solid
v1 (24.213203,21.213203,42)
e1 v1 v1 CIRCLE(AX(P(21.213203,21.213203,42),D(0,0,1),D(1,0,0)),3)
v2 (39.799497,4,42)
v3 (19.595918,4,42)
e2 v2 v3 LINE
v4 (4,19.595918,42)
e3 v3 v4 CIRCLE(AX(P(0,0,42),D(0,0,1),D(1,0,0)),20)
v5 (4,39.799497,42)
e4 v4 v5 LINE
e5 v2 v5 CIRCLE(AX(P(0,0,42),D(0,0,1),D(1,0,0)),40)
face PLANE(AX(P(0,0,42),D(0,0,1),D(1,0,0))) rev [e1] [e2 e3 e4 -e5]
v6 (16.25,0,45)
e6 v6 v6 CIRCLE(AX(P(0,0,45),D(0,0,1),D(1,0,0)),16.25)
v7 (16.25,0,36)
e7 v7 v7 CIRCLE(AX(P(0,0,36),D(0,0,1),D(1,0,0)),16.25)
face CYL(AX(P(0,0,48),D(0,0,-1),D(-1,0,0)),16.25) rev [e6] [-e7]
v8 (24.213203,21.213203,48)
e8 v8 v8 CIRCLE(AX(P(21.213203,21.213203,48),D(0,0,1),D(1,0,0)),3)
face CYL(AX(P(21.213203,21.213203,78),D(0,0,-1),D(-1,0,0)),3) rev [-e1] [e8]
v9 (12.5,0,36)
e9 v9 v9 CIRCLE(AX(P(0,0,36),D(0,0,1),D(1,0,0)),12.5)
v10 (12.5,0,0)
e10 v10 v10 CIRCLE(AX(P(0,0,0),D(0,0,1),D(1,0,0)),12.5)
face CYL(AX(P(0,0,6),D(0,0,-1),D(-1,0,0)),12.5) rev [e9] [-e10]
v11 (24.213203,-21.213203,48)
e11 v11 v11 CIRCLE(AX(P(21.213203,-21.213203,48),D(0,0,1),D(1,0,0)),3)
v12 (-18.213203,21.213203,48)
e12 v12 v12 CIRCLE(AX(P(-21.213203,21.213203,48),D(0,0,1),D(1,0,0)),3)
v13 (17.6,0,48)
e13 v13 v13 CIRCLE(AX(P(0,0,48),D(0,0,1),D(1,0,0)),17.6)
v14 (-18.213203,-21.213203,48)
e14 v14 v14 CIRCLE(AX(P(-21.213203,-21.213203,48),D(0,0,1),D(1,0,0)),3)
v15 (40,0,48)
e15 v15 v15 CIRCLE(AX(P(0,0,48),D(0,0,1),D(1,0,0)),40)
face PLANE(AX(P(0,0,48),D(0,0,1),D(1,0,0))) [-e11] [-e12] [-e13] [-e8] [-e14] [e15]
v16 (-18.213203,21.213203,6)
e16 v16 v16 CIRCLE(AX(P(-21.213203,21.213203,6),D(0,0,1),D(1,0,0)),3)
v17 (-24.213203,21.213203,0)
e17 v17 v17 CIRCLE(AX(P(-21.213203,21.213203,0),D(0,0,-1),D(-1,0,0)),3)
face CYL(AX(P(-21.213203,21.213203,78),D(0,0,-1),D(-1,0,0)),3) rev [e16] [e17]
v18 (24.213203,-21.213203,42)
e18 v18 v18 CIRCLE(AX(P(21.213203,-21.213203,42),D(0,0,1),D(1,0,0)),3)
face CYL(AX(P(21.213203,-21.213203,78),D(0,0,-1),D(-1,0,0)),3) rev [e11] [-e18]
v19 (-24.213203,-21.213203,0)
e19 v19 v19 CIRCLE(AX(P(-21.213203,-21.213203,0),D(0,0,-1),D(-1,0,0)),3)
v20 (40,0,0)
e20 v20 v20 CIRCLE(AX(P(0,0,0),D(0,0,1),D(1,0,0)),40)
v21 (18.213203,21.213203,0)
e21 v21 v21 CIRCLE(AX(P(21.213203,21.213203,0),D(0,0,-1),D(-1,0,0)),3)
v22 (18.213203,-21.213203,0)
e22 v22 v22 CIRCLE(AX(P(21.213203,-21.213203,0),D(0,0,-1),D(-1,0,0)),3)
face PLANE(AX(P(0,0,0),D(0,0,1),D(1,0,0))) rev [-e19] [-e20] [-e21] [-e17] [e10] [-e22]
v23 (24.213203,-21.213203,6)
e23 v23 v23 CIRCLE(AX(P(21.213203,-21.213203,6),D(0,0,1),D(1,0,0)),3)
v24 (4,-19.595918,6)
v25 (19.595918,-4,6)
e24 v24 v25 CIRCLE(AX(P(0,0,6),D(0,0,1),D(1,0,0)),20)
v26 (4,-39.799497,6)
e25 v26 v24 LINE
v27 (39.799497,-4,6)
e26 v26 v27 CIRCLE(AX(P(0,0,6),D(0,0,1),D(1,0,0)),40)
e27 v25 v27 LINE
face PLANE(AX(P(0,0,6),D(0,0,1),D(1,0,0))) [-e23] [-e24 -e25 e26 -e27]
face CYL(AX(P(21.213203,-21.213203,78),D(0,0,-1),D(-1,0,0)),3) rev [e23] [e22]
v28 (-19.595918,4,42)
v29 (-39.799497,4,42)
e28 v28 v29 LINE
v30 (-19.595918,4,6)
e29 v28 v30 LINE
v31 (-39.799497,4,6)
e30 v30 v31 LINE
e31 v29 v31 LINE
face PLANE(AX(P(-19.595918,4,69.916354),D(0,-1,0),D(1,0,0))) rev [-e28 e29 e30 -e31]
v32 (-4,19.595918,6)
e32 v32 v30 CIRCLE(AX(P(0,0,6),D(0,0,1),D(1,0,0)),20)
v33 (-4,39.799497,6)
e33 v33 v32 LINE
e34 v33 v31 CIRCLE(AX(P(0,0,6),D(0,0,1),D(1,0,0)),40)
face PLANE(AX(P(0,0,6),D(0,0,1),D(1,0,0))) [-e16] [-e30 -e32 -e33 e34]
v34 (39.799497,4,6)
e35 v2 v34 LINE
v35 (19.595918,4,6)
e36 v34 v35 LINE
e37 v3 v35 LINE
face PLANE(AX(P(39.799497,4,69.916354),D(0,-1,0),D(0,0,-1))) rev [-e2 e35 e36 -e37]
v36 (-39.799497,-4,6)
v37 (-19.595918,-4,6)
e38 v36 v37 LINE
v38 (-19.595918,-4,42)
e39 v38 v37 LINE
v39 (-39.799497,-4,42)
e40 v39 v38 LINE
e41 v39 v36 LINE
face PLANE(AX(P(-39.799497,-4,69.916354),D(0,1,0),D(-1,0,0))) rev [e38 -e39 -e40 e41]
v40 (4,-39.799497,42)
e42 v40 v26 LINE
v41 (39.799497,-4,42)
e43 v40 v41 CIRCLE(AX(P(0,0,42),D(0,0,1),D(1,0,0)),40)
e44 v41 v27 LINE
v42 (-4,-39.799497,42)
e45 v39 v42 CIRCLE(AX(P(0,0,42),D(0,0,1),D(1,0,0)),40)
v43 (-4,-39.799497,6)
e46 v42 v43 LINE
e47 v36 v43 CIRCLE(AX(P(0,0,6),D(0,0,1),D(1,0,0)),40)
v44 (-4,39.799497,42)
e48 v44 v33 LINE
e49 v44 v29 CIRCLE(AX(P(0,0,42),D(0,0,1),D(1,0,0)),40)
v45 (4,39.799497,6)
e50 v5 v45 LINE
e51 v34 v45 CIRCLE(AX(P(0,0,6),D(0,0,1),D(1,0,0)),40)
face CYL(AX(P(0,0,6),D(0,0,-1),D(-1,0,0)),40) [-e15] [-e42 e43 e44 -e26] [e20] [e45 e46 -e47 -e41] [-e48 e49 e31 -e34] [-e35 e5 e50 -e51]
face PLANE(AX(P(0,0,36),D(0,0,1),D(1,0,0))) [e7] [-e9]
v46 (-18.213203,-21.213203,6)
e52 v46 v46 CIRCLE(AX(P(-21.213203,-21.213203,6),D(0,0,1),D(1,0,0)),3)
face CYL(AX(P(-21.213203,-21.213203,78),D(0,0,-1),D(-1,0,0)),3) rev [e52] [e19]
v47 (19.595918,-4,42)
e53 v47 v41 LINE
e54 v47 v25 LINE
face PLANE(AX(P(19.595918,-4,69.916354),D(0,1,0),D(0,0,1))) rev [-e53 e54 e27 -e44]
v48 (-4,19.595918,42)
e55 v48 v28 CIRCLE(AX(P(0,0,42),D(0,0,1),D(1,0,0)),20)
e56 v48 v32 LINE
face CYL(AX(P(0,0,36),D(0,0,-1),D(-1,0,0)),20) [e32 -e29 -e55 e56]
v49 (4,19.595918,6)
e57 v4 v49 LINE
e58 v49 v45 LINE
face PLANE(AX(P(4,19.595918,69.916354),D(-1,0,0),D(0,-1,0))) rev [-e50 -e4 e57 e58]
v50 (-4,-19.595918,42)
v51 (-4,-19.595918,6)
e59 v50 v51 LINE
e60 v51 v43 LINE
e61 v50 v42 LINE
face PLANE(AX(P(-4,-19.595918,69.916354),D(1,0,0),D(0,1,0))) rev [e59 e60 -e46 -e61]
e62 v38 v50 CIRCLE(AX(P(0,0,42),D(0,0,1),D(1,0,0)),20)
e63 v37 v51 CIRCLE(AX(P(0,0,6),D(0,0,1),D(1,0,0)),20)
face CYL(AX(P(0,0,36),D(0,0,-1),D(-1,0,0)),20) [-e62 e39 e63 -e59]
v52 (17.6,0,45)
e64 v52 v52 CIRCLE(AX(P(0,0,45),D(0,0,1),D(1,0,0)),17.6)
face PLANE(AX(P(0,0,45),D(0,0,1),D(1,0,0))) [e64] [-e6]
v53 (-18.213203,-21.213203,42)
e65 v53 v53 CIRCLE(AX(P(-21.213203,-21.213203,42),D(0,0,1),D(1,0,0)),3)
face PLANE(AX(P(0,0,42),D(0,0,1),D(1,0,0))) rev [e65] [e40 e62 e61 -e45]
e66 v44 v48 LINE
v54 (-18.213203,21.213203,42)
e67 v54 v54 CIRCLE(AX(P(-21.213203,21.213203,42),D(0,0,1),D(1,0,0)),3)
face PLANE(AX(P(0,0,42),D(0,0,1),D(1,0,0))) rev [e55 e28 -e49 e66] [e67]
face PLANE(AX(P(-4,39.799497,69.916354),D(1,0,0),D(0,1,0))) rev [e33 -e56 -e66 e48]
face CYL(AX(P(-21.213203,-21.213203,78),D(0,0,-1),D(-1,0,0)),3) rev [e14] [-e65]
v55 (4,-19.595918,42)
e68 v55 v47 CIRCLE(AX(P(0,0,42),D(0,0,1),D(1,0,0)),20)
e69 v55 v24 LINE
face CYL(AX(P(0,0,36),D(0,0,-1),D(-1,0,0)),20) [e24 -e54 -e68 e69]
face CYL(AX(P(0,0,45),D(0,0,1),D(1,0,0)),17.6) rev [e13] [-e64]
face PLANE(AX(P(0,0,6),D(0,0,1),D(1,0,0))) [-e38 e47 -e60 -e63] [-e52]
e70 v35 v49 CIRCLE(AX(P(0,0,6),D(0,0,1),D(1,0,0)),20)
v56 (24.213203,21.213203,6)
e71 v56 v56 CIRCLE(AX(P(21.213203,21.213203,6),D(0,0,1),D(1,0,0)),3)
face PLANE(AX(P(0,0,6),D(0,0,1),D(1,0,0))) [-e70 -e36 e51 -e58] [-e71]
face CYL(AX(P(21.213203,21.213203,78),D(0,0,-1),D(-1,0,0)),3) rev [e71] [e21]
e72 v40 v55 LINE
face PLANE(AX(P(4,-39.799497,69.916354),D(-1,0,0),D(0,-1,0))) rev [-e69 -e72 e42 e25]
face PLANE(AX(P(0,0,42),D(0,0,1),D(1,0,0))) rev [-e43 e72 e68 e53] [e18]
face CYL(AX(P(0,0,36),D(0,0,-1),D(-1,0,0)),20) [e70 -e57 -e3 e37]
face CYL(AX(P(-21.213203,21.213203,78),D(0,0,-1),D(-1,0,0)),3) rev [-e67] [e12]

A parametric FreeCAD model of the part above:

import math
import FreeCAD as App
import Part
import Sketcher

V = App.Vector
Q = App.Units.Quantity

doc = App.newDocument("Part")
body = doc.addObject("PartDesign::Body", "Body")

sketch1 = doc.addObject("Sketcher::SketchObject", "Sketch")
body.addObject(sketch1)
sketch1.AttachmentSupport = (doc.XY_Plane, [""])
sketch1.MapMode = "FlatFace"
sketch1.addGeometry([
    Part.Circle(V(0, 0, 0), V(0, 0, 1), 40),
    Part.Circle(V(0, 0, 0), V(0, 0, 1), 12),
], False)
sketch1.addConstraint([
    Sketcher.Constraint("Coincident", 0, 3, -1, 1),
    Sketcher.Constraint("Coincident", 1, 3, -1, 1),
    Sketcher.Constraint("Diameter", 0, Q("80 mm")),
    Sketcher.Constraint("Diameter", 1, Q("25 mm")),
])
pad1 = doc.addObject("PartDesign::Pad", "Pad")
body.addObject(pad1)
pad1.Profile = sketch1
pad1.Length = 6

sketch2 = doc.addObject("Sketcher::SketchObject", "Sketch001")
body.addObject(sketch2)
sketch2.AttachmentSupport = (doc.XY_Plane, [""])
sketch2.MapMode = "FlatFace"
sketch2.AttachmentOffset = App.Placement(V(0, 0, 6), App.Rotation())
sketch2.addGeometry([
    Part.Circle(V(0, 0, 0), V(0, 0, 1), 20),
    Part.Circle(V(0, 0, 0), V(0, 0, 1), 12),
], False)
sketch2.addConstraint([
    Sketcher.Constraint("Coincident", 0, 3, -1, 1),
    Sketcher.Constraint("Coincident", 1, 3, -1, 1),
    Sketcher.Constraint("Diameter", 0, Q("40 mm")),
    Sketcher.Constraint("Diameter", 1, Q("25 mm")),
])
pad2 = doc.addObject("PartDesign::Pad", "Pad001")
body.addObject(pad2)
pad2.Profile = sketch2
pad2.Length = 30

sketch3 = doc.addObject("Sketcher::SketchObject", "Sketch002")
body.addObject(sketch3)
sketch3.AttachmentSupport = (doc.XY_Plane, [""])
sketch3.MapMode = "FlatFace"
sketch3.AttachmentOffset = App.Placement(V(0, 0, 36), App.Rotation())
sketch3.addGeometry([
    Part.Circle(V(0, 0, 0), V(0, 0, 1), 20),
    Part.Circle(V(0, 0, 0), V(0, 0, 1), 16),
], False)
sketch3.addConstraint([
    Sketcher.Constraint("Coincident", 0, 3, -1, 1),
    Sketcher.Constraint("Coincident", 1, 3, -1, 1),
    Sketcher.Constraint("Diameter", 0, Q("40 mm")),
    Sketcher.Constraint("Diameter", 1, Q("32.5 mm")),
])
pad3 = doc.addObject("PartDesign::Pad", "Pad002")
body.addObject(pad3)
pad3.Profile = sketch3
pad3.Length = 12

sketch4 = doc.addObject("Sketcher::SketchObject", "Sketch003")
body.addObject(sketch4)
sketch4.AttachmentSupport = (doc.XY_Plane, [""])
sketch4.MapMode = "FlatFace"
sketch4.AttachmentOffset = App.Placement(V(0, 0, 6), App.Rotation())
sketch4.addGeometry([
    Part.LineSegment(V(4, -40, 0), V(4, -20, 0)),
    Part.ArcOfCircle(Part.Circle(V(0, 0, 0), V(0, 0, 1), 20), math.radians(-102), math.radians(-78)),
    Part.LineSegment(V(-4, -20, 0), V(-4, -40, 0)),
    Part.ArcOfCircle(Part.Circle(V(0, 0, 0), V(0, 0, 1), 40), math.radians(-95.74), math.radians(-84.26)),
    Part.LineSegment(V(40, 4, 0), V(20, 4, 0)),
    Part.ArcOfCircle(Part.Circle(V(0, 0, 0), V(0, 0, 1), 20), math.radians(-12), math.radians(12)),
    Part.LineSegment(V(20, -4, 0), V(40, -4, 0)),
    Part.ArcOfCircle(Part.Circle(V(0, 0, 0), V(0, 0, 1), 40), math.radians(-5.74), math.radians(5.74)),
    Part.LineSegment(V(-40, -4, 0), V(-20, -4, 0)),
    Part.ArcOfCircle(Part.Circle(V(0, 0, 0), V(0, 0, 1), 20), math.radians(168), math.radians(192)),
    Part.LineSegment(V(-20, 4, 0), V(-40, 4, 0)),
    Part.ArcOfCircle(Part.Circle(V(0, 0, 0), V(0, 0, 1), 40), math.radians(174.26), math.radians(185.74)),
    Part.LineSegment(V(-4, 40, 0), V(-4, 20, 0)),
    Part.ArcOfCircle(Part.Circle(V(0, 0, 0), V(0, 0, 1), 20), math.radians(78), math.radians(102)),
    Part.LineSegment(V(4, 20, 0), V(4, 40, 0)),
    Part.ArcOfCircle(Part.Circle(V(0, 0, 0), V(0, 0, 1), 40), math.radians(84.26), math.radians(95.74)),
], False)
sketch4.addConstraint([
    Sketcher.Constraint("Coincident", 0, 2, 1, 2),
    Sketcher.Constraint("Coincident", 1, 1, 2, 1),
    Sketcher.Constraint("Coincident", 2, 2, 3, 1),
    Sketcher.Constraint("Coincident", 3, 2, 0, 1),
    Sketcher.Constraint("Coincident", 4, 2, 5, 2),
    Sketcher.Constraint("Coincident", 5, 1, 6, 1),
    Sketcher.Constraint("Coincident", 6, 2, 7, 1),
    Sketcher.Constraint("Coincident", 7, 2, 4, 1),
    Sketcher.Constraint("Coincident", 8, 2, 9, 2),
    Sketcher.Constraint("Coincident", 9, 1, 10, 1),
    Sketcher.Constraint("Coincident", 10, 2, 11, 1),
    Sketcher.Constraint("Coincident", 11, 2, 8, 1),
    Sketcher.Constraint("Coincident", 12, 2, 13, 2),
    Sketcher.Constraint("Coincident", 13, 1, 14, 1),
    Sketcher.Constraint("Coincident", 14, 2, 15, 1),
    Sketcher.Constraint("Coincident", 15, 2, 12, 1),
    Sketcher.Constraint("Vertical", 0),
    Sketcher.Constraint("Vertical", 2),
    Sketcher.Constraint("Horizontal", 4),
    Sketcher.Constraint("Horizontal", 6),
    Sketcher.Constraint("Horizontal", 8),
    Sketcher.Constraint("Horizontal", 10),
    Sketcher.Constraint("Vertical", 12),
    Sketcher.Constraint("Vertical", 14),
    Sketcher.Constraint("Coincident", 1, 3, -1, 1),
    Sketcher.Constraint("Coincident", 3, 3, -1, 1),
    Sketcher.Constraint("Coincident", 5, 3, -1, 1),
    Sketcher.Constraint("Coincident", 7, 3, -1, 1),
    Sketcher.Constraint("Coincident", 9, 3, -1, 1),
    Sketcher.Constraint("Coincident", 11, 3, -1, 1),
    Sketcher.Constraint("Coincident", 13, 3, -1, 1),
    Sketcher.Constraint("Coincident", 15, 3, -1, 1),
    Sketcher.Constraint("Equal", 1, 5),
    Sketcher.Constraint("Equal", 3, 7),
    Sketcher.Constraint("Equal", 5, 9),
    Sketcher.Constraint("Equal", 7, 11),
    Sketcher.Constraint("Equal", 9, 13),
    Sketcher.Constraint("Equal", 11, 15),
    Sketcher.Constraint("Horizontal", 0, 2, 1, 1),
    Sketcher.Constraint("Horizontal", 6, 2, 8, 2),
    Sketcher.Constraint("Horizontal", 7, 2, 9, 1),
    Sketcher.Constraint("Horizontal", 12, 2, 13, 1),
    Sketcher.Constraint("Vertical", 4, 2, 5, 1),
    Sketcher.Constraint("Vertical", 2, 2, 12, 2),
    Sketcher.Constraint("Equal", 10, 0),
    Sketcher.Constraint("Radius", 1, Q("20 mm")),
    Sketcher.Constraint("Radius", 3, Q("40 mm")),
    Sketcher.Constraint("DistanceX", -1, 1, 0, 2, Q("4 mm")),
])
pad4 = doc.addObject("PartDesign::Pad", "Pad003")
body.addObject(pad4)
pad4.Profile = sketch4
pad4.Length = 42

sketch5 = doc.addObject("Sketcher::SketchObject", "Sketch004")
body.addObject(sketch5)
sketch5.AttachmentSupport = (doc.XY_Plane, [""])
sketch5.MapMode = "FlatFace"
sketch5.AttachmentOffset = App.Placement(V(0, 0, 48), App.Rotation())
sketch5.addGeometry(Part.Circle(V(0, 0, 0), V(0, 0, 1), 18), False)
sketch5.addConstraint([
    Sketcher.Constraint("Coincident", 0, 3, -1, 1),
    Sketcher.Constraint("Diameter", 0, Q("35.2 mm")),
])
pocket1 = doc.addObject("PartDesign::Pocket", "Pocket")
body.addObject(pocket1)
pocket1.Profile = sketch5
pocket1.Length = 3

sketch6 = doc.addObject("Sketcher::SketchObject", "Sketch005")
body.addObject(sketch6)
sketch6.AttachmentSupport = (doc.XY_Plane, [""])
sketch6.MapMode = "FlatFace"
sketch6.AttachmentOffset = App.Placement(V(0, 0, 42), App.Rotation())
sketch6.addGeometry([
    Part.Circle(V(0, 0, 0), V(0, 0, 1), 40),
    Part.Circle(V(0, 0, 0), V(0, 0, 1), 20),
], False)
sketch6.addConstraint([
    Sketcher.Constraint("Coincident", 0, 3, -1, 1),
    Sketcher.Constraint("Coincident", 1, 3, -1, 1),
    Sketcher.Constraint("Diameter", 0, Q("80 mm")),
    Sketcher.Constraint("Diameter", 1, Q("40 mm")),
])
pad5 = doc.addObject("PartDesign::Pad", "Pad004")
body.addObject(pad5)
pad5.Profile = sketch6
pad5.Length = 6

sketch7 = doc.addObject("Sketcher::SketchObject", "Sketch006")
body.addObject(sketch7)
sketch7.AttachmentSupport = (doc.XY_Plane, [""])
sketch7.MapMode = "FlatFace"
sketch7.addGeometry([
    Part.Circle(V(21.2, 21.2, 0), V(0, 0, 1), 3),
    Part.Circle(V(-21.2, 21.2, 0), V(0, 0, 1), 3),
    Part.Circle(V(-21.2, -21.2, 0), V(0, 0, 1), 3),
    Part.Circle(V(21.2, -21.2, 0), V(0, 0, 1), 3),
], False)
sketch7.addConstraint([
    Sketcher.Constraint("Equal", 0, 1),
    Sketcher.Constraint("Equal", 1, 2),
    Sketcher.Constraint("Equal", 2, 3),
    Sketcher.Constraint("Symmetric", 0, 3, 2, 3, -1, 1),
    Sketcher.Constraint("Symmetric", 1, 3, 3, 3, -1, 1),
    Sketcher.Constraint("Symmetric", 0, 3, 1, 3, -2),
    Sketcher.Constraint("Diameter", 0, Q("6 mm")),
    Sketcher.Constraint("DistanceX", -1, 1, 0, 3, Q("21.213203 mm")),
    Sketcher.Constraint("DistanceY", -1, 1, 0, 3, Q("21.213203 mm")),
])
pocket2 = doc.addObject("PartDesign::Pocket", "Pocket001")
body.addObject(pocket2)
pocket2.Profile = sketch7
pocket2.Length = 78
pocket2.Reversed = True

doc.recompute()
